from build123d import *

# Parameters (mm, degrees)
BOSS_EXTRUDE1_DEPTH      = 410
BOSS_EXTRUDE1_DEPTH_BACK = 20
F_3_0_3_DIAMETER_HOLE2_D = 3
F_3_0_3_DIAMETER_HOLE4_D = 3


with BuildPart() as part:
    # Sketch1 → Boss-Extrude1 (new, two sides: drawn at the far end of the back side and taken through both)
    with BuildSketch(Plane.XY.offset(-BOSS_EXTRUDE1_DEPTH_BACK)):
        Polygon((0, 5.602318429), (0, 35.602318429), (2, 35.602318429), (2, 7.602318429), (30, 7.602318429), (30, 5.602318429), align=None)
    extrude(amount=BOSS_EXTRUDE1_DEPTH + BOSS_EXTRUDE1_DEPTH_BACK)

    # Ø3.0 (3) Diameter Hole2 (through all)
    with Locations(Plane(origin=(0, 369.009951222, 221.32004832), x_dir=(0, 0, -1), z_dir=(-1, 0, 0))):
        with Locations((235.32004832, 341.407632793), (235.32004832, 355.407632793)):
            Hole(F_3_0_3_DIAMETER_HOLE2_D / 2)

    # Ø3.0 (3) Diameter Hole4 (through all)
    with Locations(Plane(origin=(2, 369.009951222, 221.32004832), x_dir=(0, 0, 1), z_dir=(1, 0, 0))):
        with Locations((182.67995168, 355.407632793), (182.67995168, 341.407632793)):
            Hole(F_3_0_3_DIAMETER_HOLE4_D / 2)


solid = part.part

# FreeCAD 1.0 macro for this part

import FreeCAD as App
import Part
import Sketcher

V = App.Vector
Q = App.Units.Quantity


def add_polygon(sketch, points):
    """Adds a closed chain of lines whose ends are joined by coincident constraints."""
    first, n = sketch.GeometryCount, len(points)
    for a, b in zip(points, points[1:] + points[:1]):
        sketch.addGeometry(Part.LineSegment(App.Vector(*a, 0), App.Vector(*b, 0)), False)
    for i in range(n):
        sketch.addConstraint(Sketcher.Constraint("Coincident", first + i, 2, first + (i + 1) % n, 1))

doc = App.newDocument("Part")
params = doc.addObject("Spreadsheet::Sheet", "Params")
for row, (alias, value) in enumerate([
    ("sketch1_width", "30 mm"),
    ("sketch1_width2", "28 mm"),
    ("pad1_length", "410 mm"),
    ("pad1_length2", "20 mm"),
    ("sketch2_diameter", "3 mm"),
    ("hole_diameter", "3 mm"),
    ("sketch3_diameter", "3 mm"),
    ("hole2_diameter", "3 mm"),
], start=1):
    params.set(f"A{row}", alias)
    params.set(f"B{row}", "=" + value)
    params.setAlias(f"B{row}", alias)

body = doc.addObject("PartDesign::Body", "Body")

sketch1 = doc.addObject("Sketcher::SketchObject", "Sketch")
body.addObject(sketch1)
sketch1.AttachmentSupport = (doc.XY_Plane, [""])
sketch1.MapMode = "FlatFace"
add_polygon(sketch1, [(0, 35.6), (0, 5.6), (30, 5.6), (30, 7.6), (2, 7.6), (2, 35.6)])
sketch1.addConstraint([
    Sketcher.Constraint("Vertical", 0),
    Sketcher.Constraint("Horizontal", 1),
    Sketcher.Constraint("Vertical", 2),
    Sketcher.Constraint("Horizontal", 3),
    Sketcher.Constraint("Vertical", 4),
    Sketcher.Constraint("Horizontal", 5),
    Sketcher.Constraint("PointOnObject", 0, 2, -2),
    Sketcher.Constraint("Equal", 1, 0),
    Sketcher.Constraint("Equal", 5, 2),
    Sketcher.Constraint("DistanceX", 1, 1, 1, 2, Q("30 mm")),
    Sketcher.Constraint("DistanceX", 3, 2, 3, 1, Q("28 mm")),
    Sketcher.Constraint("DistanceY", -1, 1, 0, 2, Q("5.602318 mm")),
])
sketch1.setExpression("Constraints[15]", "Params.sketch1_width")
sketch1.setExpression("Constraints[16]", "Params.sketch1_width2")
pad1 = doc.addObject("PartDesign::Pad", "Pad")
body.addObject(pad1)
pad1.Profile = sketch1
pad1.Type = "TwoLengths"
pad1.setExpression("Length", "Params.pad1_length")
pad1.setExpression("Length2", "Params.pad1_length2")

sketch2 = doc.addObject("Sketcher::SketchObject", "Sketch001")
body.addObject(sketch2)
sketch2.AttachmentSupport = (doc.YZ_Plane, [""])
sketch2.MapMode = "FlatFace"
sketch2.addGeometry([
    Part.Circle(V(27.6, -14, 0), V(0, 0, 1), 1.5),
    Part.Circle(V(13.6, -14, 0), V(0, 0, 1), 1.5),
], False)
sketch2.addConstraint([
    Sketcher.Constraint("Equal", 0, 1),
    Sketcher.Constraint("Horizontal", 0, 3, 1, 3),
    Sketcher.Constraint("Diameter", 0, Q("3 mm")),
    Sketcher.Constraint("DistanceY", 0, 3, -1, 1, Q("14 mm")),
    Sketcher.Constraint("DistanceX", 1, 3, 0, 3, Q("14 mm")),
    Sketcher.Constraint("DistanceX", -1, 1, 0, 3, Q("27.602318 mm")),
])
sketch2.setExpression("Constraints[2]", "Params.sketch2_diameter")
doc.recompute()
hole = doc.addObject("PartDesign::Hole", "Hole")
body.addObject(hole)
hole.Profile = sketch2
hole.ThreadType = "None"
hole.setExpression("Diameter", "Params.hole_diameter")
hole.DepthType = "ThroughAll"
hole.Reversed = True

sketch3 = doc.addObject("Sketcher::SketchObject", "Sketch002")
body.addObject(sketch3)
sketch3.AttachmentSupport = (doc.YZ_Plane, [""])
sketch3.MapMode = "FlatFace"
sketch3.AttachmentOffset = App.Placement(V(0, 0, 2), App.Rotation())
sketch3.addGeometry([
    Part.Circle(V(13.6, 404, 0), V(0, 0, 1), 1.5),
    Part.Circle(V(27.6, 404, 0), V(0, 0, 1), 1.5),
], False)
sketch3.addConstraint([
    Sketcher.Constraint("Equal", 0, 1),
    Sketcher.Constraint("Horizontal", 0, 3, 1, 3),
    Sketcher.Constraint("Diameter", 0, Q("3 mm")),
    Sketcher.Constraint("DistanceY", -1, 1, 0, 3, Q("404 mm")),
    Sketcher.Constraint("DistanceX", 0, 3, 1, 3, Q("14 mm")),
    Sketcher.Constraint("DistanceX", -1, 1, 0, 3, Q("13.602318 mm")),
])
sketch3.setExpression("Constraints[2]", "Params.sketch3_diameter")
doc.recompute()
hole2 = doc.addObject("PartDesign::Hole", "Hole001")
body.addObject(hole2)
hole2.Profile = sketch3
hole2.ThreadType = "None"
hole2.setExpression("Diameter", "Params.hole2_diameter")
hole2.DepthType = "ThroughAll"

doc.recompute()
